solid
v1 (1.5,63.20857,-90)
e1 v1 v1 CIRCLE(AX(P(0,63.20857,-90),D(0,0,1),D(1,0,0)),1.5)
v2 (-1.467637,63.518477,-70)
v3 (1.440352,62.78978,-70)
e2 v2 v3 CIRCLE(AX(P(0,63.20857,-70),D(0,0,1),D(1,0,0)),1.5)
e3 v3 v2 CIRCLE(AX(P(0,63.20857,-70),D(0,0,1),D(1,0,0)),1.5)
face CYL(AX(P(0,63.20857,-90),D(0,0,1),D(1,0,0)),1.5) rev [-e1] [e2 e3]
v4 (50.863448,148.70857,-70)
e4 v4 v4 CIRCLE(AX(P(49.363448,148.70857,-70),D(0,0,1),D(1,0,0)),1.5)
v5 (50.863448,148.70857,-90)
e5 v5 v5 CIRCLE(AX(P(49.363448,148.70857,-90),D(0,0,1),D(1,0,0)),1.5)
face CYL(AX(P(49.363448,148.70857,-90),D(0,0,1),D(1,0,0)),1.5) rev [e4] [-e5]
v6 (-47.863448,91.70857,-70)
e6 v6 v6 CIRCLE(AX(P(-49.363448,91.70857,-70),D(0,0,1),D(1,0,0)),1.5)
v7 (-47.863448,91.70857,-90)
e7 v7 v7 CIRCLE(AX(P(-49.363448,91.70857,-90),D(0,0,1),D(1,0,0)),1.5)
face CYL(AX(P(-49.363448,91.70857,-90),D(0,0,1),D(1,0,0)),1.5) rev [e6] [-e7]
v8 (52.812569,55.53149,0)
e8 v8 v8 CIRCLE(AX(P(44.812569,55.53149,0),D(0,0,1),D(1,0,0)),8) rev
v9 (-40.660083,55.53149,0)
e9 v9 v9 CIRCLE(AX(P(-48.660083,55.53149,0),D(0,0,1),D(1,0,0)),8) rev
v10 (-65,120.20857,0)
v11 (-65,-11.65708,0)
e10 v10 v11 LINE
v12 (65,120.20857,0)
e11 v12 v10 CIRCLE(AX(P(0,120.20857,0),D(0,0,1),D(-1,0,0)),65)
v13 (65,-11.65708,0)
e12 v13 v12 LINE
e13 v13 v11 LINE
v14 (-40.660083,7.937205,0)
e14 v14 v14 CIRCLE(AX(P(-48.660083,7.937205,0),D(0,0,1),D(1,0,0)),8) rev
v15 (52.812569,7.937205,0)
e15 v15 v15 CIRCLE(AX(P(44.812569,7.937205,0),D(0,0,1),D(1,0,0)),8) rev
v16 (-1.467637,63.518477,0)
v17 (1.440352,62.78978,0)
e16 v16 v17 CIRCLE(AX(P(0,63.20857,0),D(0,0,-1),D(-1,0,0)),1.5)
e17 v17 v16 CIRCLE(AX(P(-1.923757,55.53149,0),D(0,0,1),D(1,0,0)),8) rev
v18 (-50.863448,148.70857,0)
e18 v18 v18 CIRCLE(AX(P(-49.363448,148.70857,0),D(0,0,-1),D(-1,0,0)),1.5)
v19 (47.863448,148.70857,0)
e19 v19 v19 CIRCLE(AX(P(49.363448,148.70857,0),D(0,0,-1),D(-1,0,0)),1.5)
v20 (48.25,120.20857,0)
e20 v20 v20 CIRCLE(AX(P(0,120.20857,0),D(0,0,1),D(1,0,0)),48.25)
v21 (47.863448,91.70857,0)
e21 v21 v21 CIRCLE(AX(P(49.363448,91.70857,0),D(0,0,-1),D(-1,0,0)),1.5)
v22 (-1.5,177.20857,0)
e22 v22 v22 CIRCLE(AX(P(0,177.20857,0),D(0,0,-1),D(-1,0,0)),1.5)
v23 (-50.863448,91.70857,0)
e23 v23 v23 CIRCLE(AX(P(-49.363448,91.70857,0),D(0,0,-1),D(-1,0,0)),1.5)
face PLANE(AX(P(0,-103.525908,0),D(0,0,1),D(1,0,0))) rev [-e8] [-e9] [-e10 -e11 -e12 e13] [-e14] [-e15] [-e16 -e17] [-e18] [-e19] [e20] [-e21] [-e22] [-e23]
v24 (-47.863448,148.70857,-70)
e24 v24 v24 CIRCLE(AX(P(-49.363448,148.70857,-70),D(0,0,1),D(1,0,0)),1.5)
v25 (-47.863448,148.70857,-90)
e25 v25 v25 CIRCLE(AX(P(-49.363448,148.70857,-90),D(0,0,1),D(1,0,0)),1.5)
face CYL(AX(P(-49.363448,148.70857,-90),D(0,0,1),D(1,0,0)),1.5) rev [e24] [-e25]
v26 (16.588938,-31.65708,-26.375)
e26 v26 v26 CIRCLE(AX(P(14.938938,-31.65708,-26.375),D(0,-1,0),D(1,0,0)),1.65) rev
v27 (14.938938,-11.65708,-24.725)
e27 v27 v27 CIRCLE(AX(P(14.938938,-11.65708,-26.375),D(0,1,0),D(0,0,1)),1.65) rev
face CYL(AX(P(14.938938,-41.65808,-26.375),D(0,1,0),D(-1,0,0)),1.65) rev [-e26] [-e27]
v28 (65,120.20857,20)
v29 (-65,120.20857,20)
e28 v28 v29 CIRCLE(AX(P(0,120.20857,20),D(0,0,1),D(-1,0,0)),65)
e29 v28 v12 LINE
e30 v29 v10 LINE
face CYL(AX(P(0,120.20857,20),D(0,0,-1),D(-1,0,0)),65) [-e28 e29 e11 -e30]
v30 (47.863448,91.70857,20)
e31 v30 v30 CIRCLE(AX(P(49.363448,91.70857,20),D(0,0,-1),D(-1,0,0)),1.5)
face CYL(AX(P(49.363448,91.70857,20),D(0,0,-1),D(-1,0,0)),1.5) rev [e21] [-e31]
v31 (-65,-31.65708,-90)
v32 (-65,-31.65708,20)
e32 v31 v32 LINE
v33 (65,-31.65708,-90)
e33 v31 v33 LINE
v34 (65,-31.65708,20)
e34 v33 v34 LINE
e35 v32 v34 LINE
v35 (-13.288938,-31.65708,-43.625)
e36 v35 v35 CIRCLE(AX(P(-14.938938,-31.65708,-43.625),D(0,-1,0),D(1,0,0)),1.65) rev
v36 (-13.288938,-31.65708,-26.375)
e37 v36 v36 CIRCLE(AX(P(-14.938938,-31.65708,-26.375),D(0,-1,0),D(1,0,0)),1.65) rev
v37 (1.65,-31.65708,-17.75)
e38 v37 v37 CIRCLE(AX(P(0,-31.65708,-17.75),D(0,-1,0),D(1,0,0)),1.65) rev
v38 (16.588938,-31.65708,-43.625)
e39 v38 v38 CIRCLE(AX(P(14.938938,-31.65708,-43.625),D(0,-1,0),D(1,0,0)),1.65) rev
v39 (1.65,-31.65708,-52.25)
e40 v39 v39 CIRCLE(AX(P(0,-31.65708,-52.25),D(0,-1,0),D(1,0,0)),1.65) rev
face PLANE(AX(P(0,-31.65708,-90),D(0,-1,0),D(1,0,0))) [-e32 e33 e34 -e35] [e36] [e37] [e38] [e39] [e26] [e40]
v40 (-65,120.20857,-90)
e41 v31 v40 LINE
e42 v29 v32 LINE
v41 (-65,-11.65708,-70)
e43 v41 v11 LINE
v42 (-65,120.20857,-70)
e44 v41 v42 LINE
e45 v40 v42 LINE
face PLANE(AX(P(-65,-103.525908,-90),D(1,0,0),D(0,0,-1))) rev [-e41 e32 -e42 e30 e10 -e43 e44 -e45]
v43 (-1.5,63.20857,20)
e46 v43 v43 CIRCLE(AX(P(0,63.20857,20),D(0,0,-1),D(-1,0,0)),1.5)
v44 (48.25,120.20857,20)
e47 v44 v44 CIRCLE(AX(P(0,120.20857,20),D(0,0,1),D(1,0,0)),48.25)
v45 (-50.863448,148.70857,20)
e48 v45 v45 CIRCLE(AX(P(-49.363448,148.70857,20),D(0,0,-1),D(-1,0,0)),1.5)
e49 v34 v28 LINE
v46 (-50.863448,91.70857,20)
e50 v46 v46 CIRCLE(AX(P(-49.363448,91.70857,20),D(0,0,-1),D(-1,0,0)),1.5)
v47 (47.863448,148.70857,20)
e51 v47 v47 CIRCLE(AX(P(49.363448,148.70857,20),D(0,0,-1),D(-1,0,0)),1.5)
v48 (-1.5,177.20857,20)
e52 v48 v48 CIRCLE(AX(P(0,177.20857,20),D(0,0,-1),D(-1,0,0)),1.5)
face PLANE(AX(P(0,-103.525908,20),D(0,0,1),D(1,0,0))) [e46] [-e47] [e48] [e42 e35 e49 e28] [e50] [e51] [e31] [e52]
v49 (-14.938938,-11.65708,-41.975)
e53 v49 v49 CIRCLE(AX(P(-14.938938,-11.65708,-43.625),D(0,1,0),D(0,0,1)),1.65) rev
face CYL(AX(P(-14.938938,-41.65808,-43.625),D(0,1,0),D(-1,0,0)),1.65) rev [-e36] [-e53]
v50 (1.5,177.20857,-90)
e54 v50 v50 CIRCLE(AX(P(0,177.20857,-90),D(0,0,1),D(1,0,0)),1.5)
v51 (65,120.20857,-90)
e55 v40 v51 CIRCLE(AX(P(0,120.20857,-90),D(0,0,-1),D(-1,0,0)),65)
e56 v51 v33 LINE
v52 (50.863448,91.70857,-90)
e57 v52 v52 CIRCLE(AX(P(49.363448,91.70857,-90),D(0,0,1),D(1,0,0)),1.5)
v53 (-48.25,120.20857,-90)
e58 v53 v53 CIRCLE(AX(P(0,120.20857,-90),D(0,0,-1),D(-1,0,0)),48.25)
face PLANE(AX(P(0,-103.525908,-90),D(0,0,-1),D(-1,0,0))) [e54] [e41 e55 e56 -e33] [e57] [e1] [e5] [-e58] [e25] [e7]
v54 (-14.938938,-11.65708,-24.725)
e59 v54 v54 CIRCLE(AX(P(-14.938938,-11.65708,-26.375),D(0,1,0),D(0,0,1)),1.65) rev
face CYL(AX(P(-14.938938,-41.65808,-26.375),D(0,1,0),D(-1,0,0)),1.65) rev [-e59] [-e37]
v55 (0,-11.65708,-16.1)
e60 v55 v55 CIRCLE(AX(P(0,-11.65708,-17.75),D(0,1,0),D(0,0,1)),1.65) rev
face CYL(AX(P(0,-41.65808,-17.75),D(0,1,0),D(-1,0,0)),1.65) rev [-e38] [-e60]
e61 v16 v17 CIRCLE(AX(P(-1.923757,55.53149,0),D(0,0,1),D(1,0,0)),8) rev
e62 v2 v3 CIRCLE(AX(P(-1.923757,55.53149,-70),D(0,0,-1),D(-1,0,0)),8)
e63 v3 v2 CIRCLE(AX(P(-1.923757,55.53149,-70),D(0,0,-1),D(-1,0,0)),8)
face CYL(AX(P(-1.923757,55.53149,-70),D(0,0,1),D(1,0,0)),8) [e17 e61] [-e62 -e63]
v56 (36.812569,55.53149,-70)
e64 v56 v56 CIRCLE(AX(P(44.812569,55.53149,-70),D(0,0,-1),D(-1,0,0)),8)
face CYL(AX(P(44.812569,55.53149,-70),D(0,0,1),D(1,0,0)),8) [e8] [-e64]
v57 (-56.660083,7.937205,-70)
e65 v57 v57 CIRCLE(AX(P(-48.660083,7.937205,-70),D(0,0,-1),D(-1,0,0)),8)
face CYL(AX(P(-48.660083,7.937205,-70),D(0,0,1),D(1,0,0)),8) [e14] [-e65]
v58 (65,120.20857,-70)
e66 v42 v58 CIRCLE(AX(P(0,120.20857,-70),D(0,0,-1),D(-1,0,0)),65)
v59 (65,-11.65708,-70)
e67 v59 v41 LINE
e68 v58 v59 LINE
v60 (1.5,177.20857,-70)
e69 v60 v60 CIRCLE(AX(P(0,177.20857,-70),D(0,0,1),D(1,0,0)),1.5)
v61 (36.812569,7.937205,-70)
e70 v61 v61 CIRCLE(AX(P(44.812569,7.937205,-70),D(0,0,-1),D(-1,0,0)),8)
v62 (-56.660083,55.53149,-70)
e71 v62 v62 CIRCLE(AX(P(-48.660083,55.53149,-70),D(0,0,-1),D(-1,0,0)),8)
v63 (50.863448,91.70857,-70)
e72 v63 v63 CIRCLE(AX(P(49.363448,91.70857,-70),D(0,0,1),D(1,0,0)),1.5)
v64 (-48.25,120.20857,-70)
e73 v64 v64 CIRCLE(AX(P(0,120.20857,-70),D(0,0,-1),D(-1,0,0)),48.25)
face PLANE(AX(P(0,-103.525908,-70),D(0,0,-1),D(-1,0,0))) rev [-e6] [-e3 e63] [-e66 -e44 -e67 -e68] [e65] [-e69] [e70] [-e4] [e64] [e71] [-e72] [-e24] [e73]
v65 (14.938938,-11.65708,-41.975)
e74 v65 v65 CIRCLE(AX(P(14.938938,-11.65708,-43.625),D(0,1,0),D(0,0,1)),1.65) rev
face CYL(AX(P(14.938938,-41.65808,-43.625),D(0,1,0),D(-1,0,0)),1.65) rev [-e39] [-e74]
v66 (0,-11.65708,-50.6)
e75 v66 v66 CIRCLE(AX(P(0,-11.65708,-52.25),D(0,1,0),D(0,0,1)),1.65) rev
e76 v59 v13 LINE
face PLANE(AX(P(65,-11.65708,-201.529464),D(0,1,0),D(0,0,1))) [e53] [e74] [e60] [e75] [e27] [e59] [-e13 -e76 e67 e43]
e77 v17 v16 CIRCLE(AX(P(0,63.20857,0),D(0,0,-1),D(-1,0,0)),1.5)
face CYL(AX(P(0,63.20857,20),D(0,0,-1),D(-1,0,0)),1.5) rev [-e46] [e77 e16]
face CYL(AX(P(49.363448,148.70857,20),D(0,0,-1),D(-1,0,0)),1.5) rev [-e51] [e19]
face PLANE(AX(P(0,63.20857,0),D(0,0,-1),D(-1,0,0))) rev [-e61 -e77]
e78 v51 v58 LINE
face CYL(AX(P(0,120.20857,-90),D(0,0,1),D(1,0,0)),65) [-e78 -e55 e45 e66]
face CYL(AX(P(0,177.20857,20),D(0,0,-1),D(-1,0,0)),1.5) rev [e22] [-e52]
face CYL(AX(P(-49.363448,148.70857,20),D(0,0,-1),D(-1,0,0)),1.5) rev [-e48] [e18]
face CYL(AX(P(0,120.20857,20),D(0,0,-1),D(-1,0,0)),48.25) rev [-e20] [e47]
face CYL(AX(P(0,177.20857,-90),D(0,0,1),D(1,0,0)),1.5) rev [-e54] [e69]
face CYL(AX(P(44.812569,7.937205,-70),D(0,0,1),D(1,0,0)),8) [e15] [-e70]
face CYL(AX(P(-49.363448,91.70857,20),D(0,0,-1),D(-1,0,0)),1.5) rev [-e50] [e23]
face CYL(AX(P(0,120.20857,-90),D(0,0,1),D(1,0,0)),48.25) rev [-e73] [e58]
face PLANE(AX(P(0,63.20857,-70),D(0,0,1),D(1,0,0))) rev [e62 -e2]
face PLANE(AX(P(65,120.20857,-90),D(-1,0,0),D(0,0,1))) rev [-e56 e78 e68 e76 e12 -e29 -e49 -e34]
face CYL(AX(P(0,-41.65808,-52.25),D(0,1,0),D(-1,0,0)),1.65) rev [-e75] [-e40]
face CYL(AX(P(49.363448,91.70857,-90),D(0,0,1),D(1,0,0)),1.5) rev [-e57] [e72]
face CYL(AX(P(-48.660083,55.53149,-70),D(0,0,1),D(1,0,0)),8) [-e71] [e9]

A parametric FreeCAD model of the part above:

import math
import FreeCAD as App
import Part
import Sketcher
Q = App.Units.Quantity


def add_polygon(sketch, points):
    """Adds a closed chain of lines whose ends are joined by coincident constraints."""
    first, n = sketch.GeometryCount, len(points)
    for a, b in zip(points, points[1:] + points[:1]):
        sketch.addGeometry(Part.LineSegment(App.Vector(*a, 0), App.Vector(*b, 0)), False)
    for i in range(n):
        sketch.addConstraint(Sketcher.Constraint("Coincident", first + i, 2, first + (i + 1) % n, 1))

doc = App.newDocument("Part")
params = doc.addObject("Spreadsheet::Sheet", "Params")
for row, (alias, value) in enumerate([
    ("sketch1_radius", "65 mm"),
    ("sketch1_diameter", "96.5 mm"),
    ("pad1_length", "20 mm"),
    ("sketch2_diameter", "16 mm"),
    ("pad2_length", "70 mm"),
    ("sketch3_radius", "65 mm"),
    ("sketch3_diameter", "96.5 mm"),
    ("pad3_length", "20 mm"),
    ("sketch4_radius", "65 mm"),
    ("pocket1_length", "226.004921 mm"),
    ("sketch5_width", "130 mm"),
    ("sketch5_height", "20 mm"),
    ("pad4_length", "70 mm"),
    ("sketch6_diameter", "60 mm"),
    ("pocket2_length", "20 mm"),
    ("sketch7_diameter", "60 mm"),
    ("pad5_length", "20 mm"),
    ("sketch8_diameter", "3.3 mm"),
    ("pad6_length", "10 mm"),
    ("sketch9_diameter", "3.3 mm"),
    ("sketch10_diameter", "3.3 mm"),
    ("sketch11_diameter", "3.3 mm"),
    ("sketch12_diameter", "3.3 mm"),
    ("sketch13_diameter", "3.3 mm"),
    ("sketch14_diameter", "3.3 mm"),
    ("sketch15_diameter", "3.3 mm"),
    ("sketch16_diameter", "3.3 mm"),
    ("sketch17_diameter", "3.3 mm"),
    ("sketch18_diameter", "3.3 mm"),
    ("sketch19_diameter", "3.3 mm"),
    ("sketch20_diameter", "3.3 mm"),
    ("sketch21_diameter", "3 mm"),
    ("sketch22_diameter", "3 mm"),
], start=1):
    params.set(f"A{row}", alias)
    params.set(f"B{row}", "=" + value)
    params.setAlias(f"B{row}", alias)

body = doc.addObject("PartDesign::Body", "Body")
body.AllowCompound = True

sketch1 = body.newObject("Sketcher::SketchObject", "Sketch")
sketch1.AttachmentSupport = (doc.getObject("XY_Plane"), [""])
sketch1.MapMode = "FlatFace"
sketch1.addGeometry([
    Part.LineSegment(App.Vector(-65, 120, 0), App.Vector(-65, -104, 0)),
    Part.ArcOfCircle(Part.Circle(App.Vector(0, -104, 0), App.Vector(0, 0, 1), 65), math.radians(180), math.radians(360)),
    Part.LineSegment(App.Vector(65, -104, 0), App.Vector(65, 120, 0)),
    Part.ArcOfCircle(Part.Circle(App.Vector(0, 120, 0), App.Vector(0, 0, 1), 65), math.radians(0), math.radians(180)),
    Part.Circle(App.Vector(0, -104, 0), App.Vector(0, 0, 1), 48),
    Part.Circle(App.Vector(0, 120, 0), App.Vector(0, 0, 1), 48),
], False)
sketch1.addConstraint([
    Sketcher.Constraint("Tangent", 0, 2, 1, 1),
    Sketcher.Constraint("Tangent", 1, 2, 2, 1),
    Sketcher.Constraint("Tangent", 2, 2, 3, 1),
    Sketcher.Constraint("Tangent", 3, 2, 0, 1),
    Sketcher.Constraint("Vertical", 0),
    Sketcher.Constraint("Vertical", 2),
    Sketcher.Constraint("Coincident", 4, 3, 1, 3),
    Sketcher.Constraint("Coincident", 5, 3, 3, 3),
    Sketcher.Constraint("Equal", 4, 5),
    Sketcher.Constraint("PointOnObject", 1, 3, -2),
    Sketcher.Constraint("Radius", 1, Q("65 mm")),
    Sketcher.Constraint("Diameter", 4, Q("96.5 mm")),
    Sketcher.Constraint("DistanceY", 0, 2, 0, 1, Q("223.734478 mm")),
    Sketcher.Constraint("DistanceY", 1, 3, -1, 1, Q("103.525908 mm")),
])
sketch1.setExpression("Constraints[10]", "Params.sketch1_radius")
sketch1.setExpression("Constraints[11]", "Params.sketch1_diameter")
pad1 = body.newObject("PartDesign::Pad", "Pad")
pad1.Profile = sketch1
pad1.setExpression("Length", "Params.pad1_length")

sketch2 = body.newObject("Sketcher::SketchObject", "Sketch001")
sketch2.AttachmentSupport = (doc.getObject("XY_Plane"), [""])
sketch2.MapMode = "FlatFace"
sketch2.addGeometry([
    Part.Circle(App.Vector(45, 56, 0), App.Vector(0, 0, 1), 8),
    Part.Circle(App.Vector(45, -40, 0), App.Vector(0, 0, 1), 8),
    Part.Circle(App.Vector(-49, -40, 0), App.Vector(0, 0, 1), 8),
    Part.Circle(App.Vector(-49, 56, 0), App.Vector(0, 0, 1), 8),
    Part.Circle(App.Vector(-2, 56, 0), App.Vector(0, 0, 1), 8),
    Part.Circle(App.Vector(-2, -40, 0), App.Vector(0, 0, 1), 8),
    Part.Circle(App.Vector(45, 8, 0), App.Vector(0, 0, 1), 8),
    Part.Circle(App.Vector(-49, 8, 0), App.Vector(0, 0, 1), 8),
], False)
sketch2.addConstraint([
    Sketcher.Constraint("Equal", 0, 1),
    Sketcher.Constraint("Equal", 1, 2),
    Sketcher.Constraint("Equal", 2, 3),
    Sketcher.Constraint("Equal", 3, 4),
    Sketcher.Constraint("Equal", 4, 5),
    Sketcher.Constraint("Equal", 5, 6),
    Sketcher.Constraint("Equal", 6, 7),
    Sketcher.Constraint("Horizontal", 1, 3, 2, 3),
    Sketcher.Constraint("Horizontal", 0, 3, 3, 3),
    Sketcher.Constraint("Horizontal", 3, 3, 4, 3),
    Sketcher.Constraint("Horizontal", 2, 3, 5, 3),
    Sketcher.Constraint("Horizontal", 6, 3, 7, 3),
    Sketcher.Constraint("Vertical", 0, 3, 1, 3),
    Sketcher.Constraint("Vertical", 2, 3, 3, 3),
    Sketcher.Constraint("Vertical", 4, 3, 5, 3),
    Sketcher.Constraint("Vertical", 1, 3, 6, 3),
    Sketcher.Constraint("Vertical", 3, 3, 7, 3),
    Sketcher.Constraint("Diameter", 0, Q("16 mm")),
    Sketcher.Constraint("DistanceX", -1, 1, 0, 3, Q("44.812569 mm")),
    Sketcher.Constraint("DistanceY", -1, 1, 0, 3, Q("55.53149 mm")),
    Sketcher.Constraint("DistanceY", 1, 3, -1, 1, Q("39.65708 mm")),
    Sketcher.Constraint("DistanceX", 2, 3, 1, 3, Q("93.472652 mm")),
    Sketcher.Constraint("DistanceX", 4, 3, -1, 1, Q("1.923757 mm")),
    Sketcher.Constraint("DistanceY", -1, 1, 6, 3, Q("7.937205 mm")),
])
sketch2.setExpression("Constraints[17]", "Params.sketch2_diameter")
pad2 = body.newObject("PartDesign::Pad", "Pad001")
pad2.Profile = sketch2
pad2.setExpression("Length", "Params.pad2_length")
pad2.Reversed = True

sketch3 = body.newObject("Sketcher::SketchObject", "Sketch002")
sketch3.AttachmentSupport = (doc.getObject("XY_Plane"), [""])
sketch3.MapMode = "FlatFace"
sketch3.AttachmentOffset = App.Placement(App.Vector(0, 0, -90), App.Rotation())
sketch3.addGeometry([
    Part.LineSegment(App.Vector(-65, -104, 0), App.Vector(-65, 120, 0)),
    Part.ArcOfCircle(Part.Circle(App.Vector(0, 120, 0), App.Vector(0, 0, 1), 65), math.radians(0), math.radians(180)),
    Part.LineSegment(App.Vector(65, 120, 0), App.Vector(65, -104, 0)),
    Part.ArcOfCircle(Part.Circle(App.Vector(0, -104, 0), App.Vector(0, 0, 1), 65), math.radians(180), math.radians(360)),
    Part.Circle(App.Vector(0, -104, 0), App.Vector(0, 0, 1), 48),
    Part.Circle(App.Vector(0, 120, 0), App.Vector(0, 0, 1), 48),
], False)
sketch3.addConstraint([
    Sketcher.Constraint("Tangent", 0, 2, 1, 2),
    Sketcher.Constraint("Tangent", 1, 1, 2, 1),
    Sketcher.Constraint("Tangent", 2, 2, 3, 2),
    Sketcher.Constraint("Tangent", 3, 1, 0, 1),
    Sketcher.Constraint("Vertical", 0),
    Sketcher.Constraint("Vertical", 2),
    Sketcher.Constraint("Coincident", 4, 3, 3, 3),
    Sketcher.Constraint("Coincident", 5, 3, 1, 3),
    Sketcher.Constraint("Equal", 4, 5),
    Sketcher.Constraint("PointOnObject", 1, 3, -2),
    Sketcher.Constraint("Radius", 1, Q("65 mm")),
    Sketcher.Constraint("Diameter", 4, Q("96.5 mm")),
    Sketcher.Constraint("DistanceY", 0, 1, 0, 2, Q("223.734478 mm")),
    Sketcher.Constraint("DistanceY", -1, 1, 1, 3, Q("120.20857 mm")),
])
sketch3.setExpression("Constraints[10]", "Params.sketch3_radius")
sketch3.setExpression("Constraints[11]", "Params.sketch3_diameter")
pad3 = body.newObject("PartDesign::Pad", "Pad002")
pad3.Profile = sketch3
pad3.setExpression("Length", "Params.pad3_length")

sketch4 = body.newObject("Sketcher::SketchObject", "Sketch003")
sketch4.AttachmentSupport = (doc.getObject("XY_Plane"), [""])
sketch4.MapMode = "FlatFace"
sketch4.AttachmentOffset = App.Placement(App.Vector(0, 0, 20), App.Rotation())
sketch4.addGeometry([
    Part.ArcOfCircle(Part.Circle(App.Vector(0, -104, 0), App.Vector(0, 0, 1), 65), math.radians(180), math.radians(360)),
    Part.LineSegment(App.Vector(65, -104, 0), App.Vector(65, -32, 0)),
    Part.LineSegment(App.Vector(65, -32, 0), App.Vector(-65, -32, 0)),
    Part.LineSegment(App.Vector(-65, -32, 0), App.Vector(-65, -104, 0)),
], False)
sketch4.addConstraint([
    Sketcher.Constraint("Tangent", 0, 2, 1, 1),
    Sketcher.Constraint("Coincident", 1, 2, 2, 1),
    Sketcher.Constraint("Coincident", 2, 2, 3, 1),
    Sketcher.Constraint("Tangent", 3, 2, 0, 1),
    Sketcher.Constraint("Vertical", 1),
    Sketcher.Constraint("Horizontal", 2),
    Sketcher.Constraint("Vertical", 3),
    Sketcher.Constraint("PointOnObject", 0, 3, -2),
    Sketcher.Constraint("Radius", 0, Q("65 mm")),
    Sketcher.Constraint("DistanceY", 1, 1, 1, 2, Q("71.868828 mm")),
    Sketcher.Constraint("DistanceY", 0, 3, -1, 1, Q("103.525908 mm")),
])
sketch4.setExpression("Constraints[8]", "Params.sketch4_radius")
pocket1 = body.newObject("PartDesign::Pocket", "Pocket")
pocket1.Profile = sketch4
pocket1.setExpression("Length", "Params.pocket1_length")

sketch5 = body.newObject("Sketcher::SketchObject", "Sketch004")
sketch5.AttachmentSupport = (doc.getObject("XY_Plane"), [""])
sketch5.MapMode = "FlatFace"
add_polygon(sketch5, [(65, -12), (65, -32), (-65, -32), (-65, -12)])
sketch5.addConstraint([
    Sketcher.Constraint("Vertical", 0),
    Sketcher.Constraint("Horizontal", 1),
    Sketcher.Constraint("Vertical", 2),
    Sketcher.Constraint("Horizontal", 3),
    Sketcher.Constraint("DistanceX", 1, 2, 1, 1, Q("130 mm")),
    Sketcher.Constraint("DistanceY", 0, 2, 0, 1, Q("20 mm")),
    Sketcher.Constraint("DistanceX", -1, 1, 0, 2, Q("65 mm")),
    Sketcher.Constraint("DistanceY", 0, 2, -1, 1, Q("31.65708 mm")),
])
sketch5.setExpression("Constraints[8]", "Params.sketch5_width")
sketch5.setExpression("Constraints[9]", "Params.sketch5_height")
pad4 = body.newObject("PartDesign::Pad", "Pad003")
pad4.Profile = sketch5
pad4.setExpression("Length", "Params.pad4_length")
pad4.Reversed = True

sketch6 = body.newObject("Sketcher::SketchObject", "Sketch005")
sketch6.AttachmentSupport = (doc.getObject("XZ_Plane"), [""])
sketch6.MapMode = "FlatFace"
sketch6.AttachmentOffset = App.Placement(App.Vector(0, 0, 31.65708), App.Rotation())
sketch6.addGeometry(Part.Circle(App.Vector(0, -35, 0), App.Vector(0, 0, 1), 30), False)
sketch6.addConstraint([
    Sketcher.Constraint("PointOnObject", 0, 3, -2),
    Sketcher.Constraint("Diameter", 0, Q("60 mm")),
    Sketcher.Constraint("DistanceY", 0, 3, -1, 1, Q("35 mm")),
])
sketch6.setExpression("Constraints[1]", "Params.sketch6_diameter")
pocket2 = body.newObject("PartDesign::Pocket", "Pocket001")
pocket2.Profile = sketch6
pocket2.setExpression("Length", "Params.pocket2_length")

sketch7 = body.newObject("Sketcher::SketchObject", "Sketch006")
sketch7.AttachmentSupport = (doc.getObject("XZ_Plane"), [""])
sketch7.MapMode = "FlatFace"
sketch7.AttachmentOffset = App.Placement(App.Vector(0, 0, 31.65708), App.Rotation())
sketch7.addGeometry(Part.Circle(App.Vector(0, -35, 0), App.Vector(0, 0, 1), 30), False)
sketch7.addConstraint([
    Sketcher.Constraint("PointOnObject", 0, 3, -2),
    Sketcher.Constraint("Diameter", 0, Q("60 mm")),
    Sketcher.Constraint("DistanceY", 0, 3, -1, 1, Q("35 mm")),
])
sketch7.setExpression("Constraints[1]", "Params.sketch7_diameter")
pad5 = body.newObject("PartDesign::Pad", "Pad004")
pad5.Profile = sketch7
pad5.setExpression("Length", "Params.pad5_length")
pad5.Reversed = True

sketch8 = body.newObject("Sketcher::SketchObject", "Sketch007")
sketch8.AttachmentSupport = (doc.getObject("XZ_Plane"), [""])
sketch8.MapMode = "FlatFace"
sketch8.AttachmentOffset = App.Placement(App.Vector(0, 0, 31.65708), App.Rotation())
sketch8.addGeometry([
    Part.Circle(App.Vector(0, -17.8, 0), App.Vector(0, 0, 1), 1.6),
    Part.Circle(App.Vector(14.9, -26.4, 0), App.Vector(0, 0, 1), 1.6),
    Part.Circle(App.Vector(14.9, -43.6, 0), App.Vector(0, 0, 1), 1.6),
    Part.Circle(App.Vector(0, -52.2, 0), App.Vector(0, 0, 1), 1.6),
    Part.Circle(App.Vector(-14.9, -43.6, 0), App.Vector(0, 0, 1), 1.6),
    Part.Circle(App.Vector(-14.9, -26.4, 0), App.Vector(0, 0, 1), 1.6),
], False)
sketch8.addConstraint([
    Sketcher.Constraint("Equal", 0, 1),
    Sketcher.Constraint("Equal", 1, 2),
    Sketcher.Constraint("Equal", 2, 3),
    Sketcher.Constraint("Equal", 3, 4),
    Sketcher.Constraint("Equal", 4, 5),
    Sketcher.Constraint("Symmetric", 2, 3, 4, 3, -2),
    Sketcher.Constraint("Symmetric", 1, 3, 5, 3, -2),
    Sketcher.Constraint("PointOnObject", 0, 3, -2),
    Sketcher.Constraint("PointOnObject", 3, 3, -2),
    Sketcher.Constraint("Vertical", 1, 3, 2, 3),
    Sketcher.Constraint("Diameter", 0, Q("3.3 mm")),
    Sketcher.Constraint("DistanceY", 3, 3, 0, 3, Q("34.5 mm")),
    Sketcher.Constraint("DistanceY", 0, 3, -1, 1, Q("17.75 mm")),
    Sketcher.Constraint("DistanceY", 2, 3, 1, 3, Q("17.25 mm")),
    Sketcher.Constraint("DistanceY", 1, 3, -1, 1, Q("26.375 mm")),
    Sketcher.Constraint("DistanceX", -1, 1, 1, 3, Q("14.938938 mm")),
])
sketch8.setExpression("Constraints[10]", "Params.sketch8_diameter")
pad6 = body.newObject("PartDesign::Pad", "Pad005")
pad6.Profile = sketch8
pad6.setExpression("Length", "Params.pad6_length")

sketch9 = body.newObject("Sketcher::SketchObject", "Sketch008")
sketch9.AttachmentSupport = (doc.getObject("XZ_Plane"), [""])
sketch9.MapMode = "FlatFace"
sketch9.AttachmentOffset = App.Placement(App.Vector(0, 0, 31.65708), App.Rotation())
sketch9.addGeometry(Part.Circle(App.Vector(0, -52.2, 0), App.Vector(0, 0, 1), 1.6), False)
sketch9.addConstraint([
    Sketcher.Constraint("PointOnObject", 0, 3, -2),
    Sketcher.Constraint("Diameter", 0, Q("3.3 mm")),
    Sketcher.Constraint("DistanceY", 0, 3, -1, 1, Q("52.25 mm")),
])
sketch9.setExpression("Constraints[1]", "Params.sketch9_diameter")
pocket3 = body.newObject("PartDesign::Pocket", "Pocket002")
pocket3.Profile = sketch9
pocket3.Type = "UpToFirst"

sketch10 = body.newObject("Sketcher::SketchObject", "Sketch009")
sketch10.AttachmentSupport = (doc.getObject("XZ_Plane"), [""])
sketch10.MapMode = "FlatFace"
sketch10.AttachmentOffset = App.Placement(App.Vector(0, 0, 31.65708), App.Rotation())
sketch10.addGeometry(Part.Circle(App.Vector(14.9, -43.6, 0), App.Vector(0, 0, 1), 1.6), False)
sketch10.addConstraint([
    Sketcher.Constraint("Diameter", 0, Q("3.3 mm")),
    Sketcher.Constraint("DistanceY", 0, 3, -1, 1, Q("43.625 mm")),
    Sketcher.Constraint("DistanceX", -1, 1, 0, 3, Q("14.938938 mm")),
])
sketch10.setExpression("Constraints[0]", "Params.sketch10_diameter")
pocket4 = body.newObject("PartDesign::Pocket", "Pocket003")
pocket4.Profile = sketch10
pocket4.Type = "UpToFirst"

sketch11 = body.newObject("Sketcher::SketchObject", "Sketch010")
sketch11.AttachmentSupport = (doc.getObject("XZ_Plane"), [""])
sketch11.MapMode = "FlatFace"
sketch11.AttachmentOffset = App.Placement(App.Vector(0, 0, 31.65708), App.Rotation())
sketch11.addGeometry(Part.Circle(App.Vector(14.9, -26.4, 0), App.Vector(0, 0, 1), 1.6), False)
sketch11.addConstraint([
    Sketcher.Constraint("Diameter", 0, Q("3.3 mm")),
    Sketcher.Constraint("DistanceY", 0, 3, -1, 1, Q("26.375 mm")),
    Sketcher.Constraint("DistanceX", -1, 1, 0, 3, Q("14.938938 mm")),
])
sketch11.setExpression("Constraints[0]", "Params.sketch11_diameter")
pocket5 = body.newObject("PartDesign::Pocket", "Pocket004")
pocket5.Profile = sketch11
pocket5.Type = "UpToFirst"

sketch12 = body.newObject("Sketcher::SketchObject", "Sketch011")
sketch12.AttachmentSupport = (doc.getObject("XZ_Plane"), [""])
sketch12.MapMode = "FlatFace"
sketch12.AttachmentOffset = App.Placement(App.Vector(0, 0, 31.65708), App.Rotation())
sketch12.addGeometry(Part.Circle(App.Vector(-14.9, -43.6, 0), App.Vector(0, 0, 1), 1.6), False)
sketch12.addConstraint([
    Sketcher.Constraint("Diameter", 0, Q("3.3 mm")),
    Sketcher.Constraint("DistanceY", 0, 3, -1, 1, Q("43.625 mm")),
    Sketcher.Constraint("DistanceX", 0, 3, -1, 1, Q("14.938938 mm")),
])
sketch12.setExpression("Constraints[0]", "Params.sketch12_diameter")
pocket6 = body.newObject("PartDesign::Pocket", "Pocket005")
pocket6.Profile = sketch12
pocket6.Type = "UpToFirst"

sketch13 = body.newObject("Sketcher::SketchObject", "Sketch012")
sketch13.AttachmentSupport = (doc.getObject("XZ_Plane"), [""])
sketch13.MapMode = "FlatFace"
sketch13.AttachmentOffset = App.Placement(App.Vector(0, 0, 31.65708), App.Rotation())
sketch13.addGeometry(Part.Circle(App.Vector(-14.9, -26.4, 0), App.Vector(0, 0, 1), 1.6), False)
sketch13.addConstraint([
    Sketcher.Constraint("Diameter", 0, Q("3.3 mm")),
    Sketcher.Constraint("DistanceY", 0, 3, -1, 1, Q("26.375 mm")),
    Sketcher.Constraint("DistanceX", 0, 3, -1, 1, Q("14.938938 mm")),
])
sketch13.setExpression("Constraints[0]", "Params.sketch13_diameter")
pocket7 = body.newObject("PartDesign::Pocket", "Pocket006")
pocket7.Profile = sketch13
pocket7.Type = "UpToFirst"

sketch14 = body.newObject("Sketcher::SketchObject", "Sketch013")
sketch14.AttachmentSupport = (doc.getObject("XZ_Plane"), [""])
sketch14.MapMode = "FlatFace"
sketch14.AttachmentOffset = App.Placement(App.Vector(0, 0, 31.65708), App.Rotation())
sketch14.addGeometry(Part.Circle(App.Vector(0, -17.8, 0), App.Vector(0, 0, 1), 1.6), False)
sketch14.addConstraint([
    Sketcher.Constraint("PointOnObject", 0, 3, -2),
    Sketcher.Constraint("Diameter", 0, Q("3.3 mm")),
    Sketcher.Constraint("DistanceY", 0, 3, -1, 1, Q("17.75 mm")),
])
sketch14.setExpression("Constraints[1]", "Params.sketch14_diameter")
pocket8 = body.newObject("PartDesign::Pocket", "Pocket007")
pocket8.Profile = sketch14
pocket8.Type = "UpToFirst"

sketch15 = body.newObject("Sketcher::SketchObject", "Sketch014")
sketch15.AttachmentSupport = (doc.getObject("XZ_Plane"), [""])
sketch15.MapMode = "FlatFace"
sketch15.AttachmentOffset = App.Placement(App.Vector(0, 0, 31.65708), App.Rotation())
sketch15.addGeometry(Part.Circle(App.Vector(0, -52.2, 0), App.Vector(0, 0, 1), 1.6), False)
sketch15.addConstraint([
    Sketcher.Constraint("PointOnObject", 0, 3, -2),
    Sketcher.Constraint("Diameter", 0, Q("3.3 mm")),
    Sketcher.Constraint("DistanceY", 0, 3, -1, 1, Q("52.25 mm")),
])
sketch15.setExpression("Constraints[1]", "Params.sketch15_diameter")
pocket9 = body.newObject("PartDesign::Pocket", "Pocket008")
pocket9.Profile = sketch15
pocket9.Type = "UpToFirst"
pocket9.Reversed = True

sketch16 = body.newObject("Sketcher::SketchObject", "Sketch015")
sketch16.AttachmentSupport = (doc.getObject("XZ_Plane"), [""])
sketch16.MapMode = "FlatFace"
sketch16.AttachmentOffset = App.Placement(App.Vector(0, 0, 31.65708), App.Rotation())
sketch16.addGeometry(Part.Circle(App.Vector(14.9, -43.6, 0), App.Vector(0, 0, 1), 1.6), False)
sketch16.addConstraint([
    Sketcher.Constraint("Diameter", 0, Q("3.3 mm")),
    Sketcher.Constraint("DistanceY", 0, 3, -1, 1, Q("43.625 mm")),
    Sketcher.Constraint("DistanceX", -1, 1, 0, 3, Q("14.938938 mm")),
])
sketch16.setExpression("Constraints[0]", "Params.sketch16_diameter")
pocket10 = body.newObject("PartDesign::Pocket", "Pocket009")
pocket10.Profile = sketch16
pocket10.Type = "UpToFirst"
pocket10.Reversed = True

sketch17 = body.newObject("Sketcher::SketchObject", "Sketch016")
sketch17.AttachmentSupport = (doc.getObject("XZ_Plane"), [""])
sketch17.MapMode = "FlatFace"
sketch17.AttachmentOffset = App.Placement(App.Vector(0, 0, 31.65708), App.Rotation())
sketch17.addGeometry(Part.Circle(App.Vector(14.9, -26.4, 0), App.Vector(0, 0, 1), 1.6), False)
sketch17.addConstraint([
    Sketcher.Constraint("Diameter", 0, Q("3.3 mm")),
    Sketcher.Constraint("DistanceY", 0, 3, -1, 1, Q("26.375 mm")),
    Sketcher.Constraint("DistanceX", -1, 1, 0, 3, Q("14.938938 mm")),
])
sketch17.setExpression("Constraints[0]", "Params.sketch17_diameter")
pocket11 = body.newObject("PartDesign::Pocket", "Pocket010")
pocket11.Profile = sketch17
pocket11.Type = "UpToFirst"
pocket11.Reversed = True

sketch18 = body.newObject("Sketcher::SketchObject", "Sketch017")
sketch18.AttachmentSupport = (doc.getObject("XZ_Plane"), [""])
sketch18.MapMode = "FlatFace"
sketch18.AttachmentOffset = App.Placement(App.Vector(0, 0, 31.65708), App.Rotation())
sketch18.addGeometry(Part.Circle(App.Vector(-14.9, -43.6, 0), App.Vector(0, 0, 1), 1.6), False)
sketch18.addConstraint([
    Sketcher.Constraint("Diameter", 0, Q("3.3 mm")),
    Sketcher.Constraint("DistanceY", 0, 3, -1, 1, Q("43.625 mm")),
    Sketcher.Constraint("DistanceX", 0, 3, -1, 1, Q("14.938938 mm")),
])
sketch18.setExpression("Constraints[0]", "Params.sketch18_diameter")
pocket12 = body.newObject("PartDesign::Pocket", "Pocket011")
pocket12.Profile = sketch18
pocket12.Type = "UpToFirst"
pocket12.Reversed = True

sketch19 = body.newObject("Sketcher::SketchObject", "Sketch018")
sketch19.AttachmentSupport = (doc.getObject("XZ_Plane"), [""])
sketch19.MapMode = "FlatFace"
sketch19.AttachmentOffset = App.Placement(App.Vector(0, 0, 31.65708), App.Rotation())
sketch19.addGeometry(Part.Circle(App.Vector(-14.9, -26.4, 0), App.Vector(0, 0, 1), 1.6), False)
sketch19.addConstraint([
    Sketcher.Constraint("Diameter", 0, Q("3.3 mm")),
    Sketcher.Constraint("DistanceY", 0, 3, -1, 1, Q("26.375 mm")),
    Sketcher.Constraint("DistanceX", 0, 3, -1, 1, Q("14.938938 mm")),
])
sketch19.setExpression("Constraints[0]", "Params.sketch19_diameter")
pocket13 = body.newObject("PartDesign::Pocket", "Pocket012")
pocket13.Profile = sketch19
pocket13.Type = "UpToFirst"
pocket13.Reversed = True

sketch20 = body.newObject("Sketcher::SketchObject", "Sketch019")
sketch20.AttachmentSupport = (doc.getObject("XZ_Plane"), [""])
sketch20.MapMode = "FlatFace"
sketch20.AttachmentOffset = App.Placement(App.Vector(0, 0, 31.65708), App.Rotation())
sketch20.addGeometry(Part.Circle(App.Vector(0, -17.8, 0), App.Vector(0, 0, 1), 1.6), False)
sketch20.addConstraint([
    Sketcher.Constraint("PointOnObject", 0, 3, -2),
    Sketcher.Constraint("Diameter", 0, Q("3.3 mm")),
    Sketcher.Constraint("DistanceY", 0, 3, -1, 1, Q("17.75 mm")),
])
sketch20.setExpression("Constraints[1]", "Params.sketch20_diameter")
pocket14 = body.newObject("PartDesign::Pocket", "Pocket013")
pocket14.Profile = sketch20
pocket14.Type = "UpToFirst"
pocket14.Reversed = True

sketch21 = body.newObject("Sketcher::SketchObject", "Sketch020")
sketch21.AttachmentSupport = (doc.getObject("XY_Plane"), [""])
sketch21.MapMode = "FlatFace"
sketch21.addGeometry([
    Part.Circle(App.Vector(0, 177.2, 0), App.Vector(0, 0, 1), 1.5),
    Part.Circle(App.Vector(-49.4, 148.7, 0), App.Vector(0, 0, 1), 1.5),
    Part.Circle(App.Vector(-49.4, 91.7, 0), App.Vector(0, 0, 1), 1.5),
    Part.Circle(App.Vector(0, 63.2, 0), App.Vector(0, 0, 1), 1.5),
    Part.Circle(App.Vector(49.4, 91.7, 0), App.Vector(0, 0, 1), 1.5),
    Part.Circle(App.Vector(49.4, 148.7, 0), App.Vector(0, 0, 1), 1.5),
], False)
sketch21.addConstraint([
    Sketcher.Constraint("Equal", 0, 1),
    Sketcher.Constraint("Equal", 1, 2),
    Sketcher.Constraint("Equal", 2, 3),
    Sketcher.Constraint("Equal", 3, 4),
    Sketcher.Constraint("Equal", 4, 5),
    Sketcher.Constraint("Symmetric", 2, 3, 4, 3, -2),
    Sketcher.Constraint("Symmetric", 1, 3, 5, 3, -2),
    Sketcher.Constraint("PointOnObject", 0, 3, -2),
    Sketcher.Constraint("PointOnObject", 3, 3, -2),
    Sketcher.Constraint("Vertical", 1, 3, 2, 3),
    Sketcher.Constraint("Diameter", 0, Q("3 mm")),
    Sketcher.Constraint("DistanceY", 2, 3, 1, 3, Q("57 mm")),
    Sketcher.Constraint("DistanceY", 3, 3, 0, 3, Q("114 mm")),
    Sketcher.Constraint("DistanceY", 1, 3, 0, 3, Q("28.5 mm")),
    Sketcher.Constraint("DistanceY", -1, 1, 0, 3, Q("177.20857 mm")),
    Sketcher.Constraint("DistanceX", 1, 3, -1, 1, Q("49.363448 mm")),
])
sketch21.setExpression("Constraints[10]", "Params.sketch21_diameter")
pocket15 = body.newObject("PartDesign::Pocket", "Pocket014")
pocket15.Profile = sketch21
pocket15.Type = "ThroughAll"
pocket15.Reversed = True

sketch22 = body.newObject("Sketcher::SketchObject", "Sketch021")
sketch22.AttachmentSupport = (doc.getObject("XY_Plane"), [""])
sketch22.MapMode = "FlatFace"
sketch22.AttachmentOffset = App.Placement(App.Vector(0, 0, -70), App.Rotation())
sketch22.addGeometry([
    Part.Circle(App.Vector(49.4, 148.7, 0), App.Vector(0, 0, 1), 1.5),
    Part.Circle(App.Vector(0, 177.2, 0), App.Vector(0, 0, 1), 1.5),
    Part.Circle(App.Vector(-49.4, 148.7, 0), App.Vector(0, 0, 1), 1.5),
    Part.Circle(App.Vector(0, 63.2, 0), App.Vector(0, 0, 1), 1.5),
    Part.Circle(App.Vector(-49.4, 91.7, 0), App.Vector(0, 0, 1), 1.5),
    Part.Circle(App.Vector(49.4, 91.7, 0), App.Vector(0, 0, 1), 1.5),
], False)
sketch22.addConstraint([
    Sketcher.Constraint("Equal", 0, 1),
    Sketcher.Constraint("Equal", 1, 2),
    Sketcher.Constraint("Equal", 2, 3),
    Sketcher.Constraint("Equal", 3, 4),
    Sketcher.Constraint("Equal", 4, 5),
    Sketcher.Constraint("Symmetric", 0, 3, 2, 3, -2),
    Sketcher.Constraint("Symmetric", 4, 3, 5, 3, -2),
    Sketcher.Constraint("PointOnObject", 1, 3, -2),
    Sketcher.Constraint("PointOnObject", 3, 3, -2),
    Sketcher.Constraint("Vertical", 2, 3, 4, 3),
    Sketcher.Constraint("Diameter", 0, Q("3 mm")),
    Sketcher.Constraint("DistanceY", 3, 3, 1, 3, Q("114 mm")),
    Sketcher.Constraint("DistanceY", 4, 3, 2, 3, Q("57 mm")),
    Sketcher.Constraint("DistanceY", 0, 3, 1, 3, Q("28.5 mm")),
    Sketcher.Constraint("DistanceX", -1, 1, 0, 3, Q("49.363448 mm")),
    Sketcher.Constraint("DistanceY", -1, 1, 0, 3, Q("148.70857 mm")),
])
sketch22.setExpression("Constraints[10]", "Params.sketch22_diameter")
pocket16 = body.newObject("PartDesign::Pocket", "Pocket015")
pocket16.Profile = sketch22
pocket16.Type = "ThroughAll"

doc.recompute()
